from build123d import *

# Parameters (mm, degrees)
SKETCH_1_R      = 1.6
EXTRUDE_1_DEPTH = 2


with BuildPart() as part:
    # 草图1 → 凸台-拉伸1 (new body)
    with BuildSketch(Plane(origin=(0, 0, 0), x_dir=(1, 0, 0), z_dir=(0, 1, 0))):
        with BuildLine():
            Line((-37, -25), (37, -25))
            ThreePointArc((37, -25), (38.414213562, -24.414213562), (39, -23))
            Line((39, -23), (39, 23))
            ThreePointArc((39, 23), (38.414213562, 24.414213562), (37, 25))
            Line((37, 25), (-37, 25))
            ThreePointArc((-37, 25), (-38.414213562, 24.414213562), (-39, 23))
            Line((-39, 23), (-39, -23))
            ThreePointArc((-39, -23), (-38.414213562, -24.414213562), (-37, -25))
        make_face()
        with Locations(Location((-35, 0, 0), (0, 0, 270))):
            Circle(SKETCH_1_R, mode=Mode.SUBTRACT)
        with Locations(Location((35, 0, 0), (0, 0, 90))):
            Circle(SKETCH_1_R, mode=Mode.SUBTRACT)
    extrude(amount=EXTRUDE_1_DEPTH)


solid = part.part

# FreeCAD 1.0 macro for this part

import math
import FreeCAD as App
import Part
import Sketcher

doc = App.newDocument("Part")
body = doc.addObject("PartDesign::Body", "Body")

# Sketch on XZ plane
sketch1 = body.newObject("Sketcher::SketchObject", "Sketch")
sketch1.AttachmentSupport = (doc.getObject("XZ_Plane"), [""])
sketch1.MapMode = "FlatFace"
sketch1.addGeometry(Part.LineSegment(App.Vector(-37, 25, 0), App.Vector(37, 25, 0)), False)
sketch1.addGeometry(Part.ArcOfCircle(Part.Circle(App.Vector(37, 23, 0), App.Vector(0, 0, 1), 2), math.radians(0), math.radians(90)), False)
sketch1.addGeometry(Part.LineSegment(App.Vector(39, 23, 0), App.Vector(39, -23, 0)), False)
sketch1.addGeometry(Part.ArcOfCircle(Part.Circle(App.Vector(37, -23, 0), App.Vector(0, 0, 1), 2), math.radians(-90), math.radians(0)), False)
sketch1.addGeometry(Part.LineSegment(App.Vector(37, -25, 0), App.Vector(-37, -25, 0)), False)
sketch1.addGeometry(Part.ArcOfCircle(Part.Circle(App.Vector(-37, -23, 0), App.Vector(0, 0, 1), 2), math.radians(-180), math.radians(-90)), False)
sketch1.addGeometry(Part.LineSegment(App.Vector(-39, -23, 0), App.Vector(-39, 23, 0)), False)
sketch1.addGeometry(Part.ArcOfCircle(Part.Circle(App.Vector(-37, 23, 0), App.Vector(0, 0, 1), 2), math.radians(90), math.radians(180)), False)
sketch1.addGeometry(Part.Circle(App.Vector(-35, 0, 0), App.Vector(0, 0, 1), 1.6), False)
sketch1.addGeometry(Part.Circle(App.Vector(35, 0, 0), App.Vector(0, 0, 1), 1.6), False)
sketch1.addConstraint(Sketcher.Constraint("Tangent", 0, 2, 1, 2))
sketch1.addConstraint(Sketcher.Constraint("Tangent", 1, 1, 2, 1))
sketch1.addConstraint(Sketcher.Constraint("Tangent", 2, 2, 3, 2))
sketch1.addConstraint(Sketcher.Constraint("Tangent", 3, 1, 4, 1))
sketch1.addConstraint(Sketcher.Constraint("Tangent", 4, 2, 5, 2))
sketch1.addConstraint(Sketcher.Constraint("Tangent", 5, 1, 6, 1))
sketch1.addConstraint(Sketcher.Constraint("Tangent", 6, 2, 7, 2))
sketch1.addConstraint(Sketcher.Constraint("Tangent", 7, 1, 0, 1))
sketch1.addConstraint(Sketcher.Constraint("Horizontal", 0))
sketch1.addConstraint(Sketcher.Constraint("Vertical", 2))
sketch1.addConstraint(Sketcher.Constraint("Horizontal", 4))
sketch1.addConstraint(Sketcher.Constraint("Vertical", 6))
sketch1.addConstraint(Sketcher.Constraint("Equal", 1, 3))
sketch1.addConstraint(Sketcher.Constraint("Equal", 3, 5))
sketch1.addConstraint(Sketcher.Constraint("Equal", 5, 7))
sketch1.addConstraint(Sketcher.Constraint("Equal", 8, 9))
sketch1.addConstraint(Sketcher.Constraint("Symmetric", 1, 3, 5, 3, -1, 1))
sketch1.addConstraint(Sketcher.Constraint("Symmetric", 8, 3, 9, 3, -1, 1))
sketch1.addConstraint(Sketcher.Constraint("PointOnObject", 8, 3, -1))
sketch1.addConstraint(Sketcher.Constraint("Radius", 1, 2.0))
sketch1.addConstraint(Sketcher.Constraint("Diameter", 8, 3.2))
sketch1.addConstraint(Sketcher.Constraint("DistanceX", 0, 1, 0, 2, 74.0))
sketch1.addConstraint(Sketcher.Constraint("DistanceY", 2, 2, 2, 1, 46.0))
sketch1.addConstraint(Sketcher.Constraint("DistanceX", 8, 3, -1, 1, 35.0))
pad1 = body.newObject("PartDesign::Pad", "Pad")
pad1.Profile = sketch1
pad1.Length = 2
pad1.Reversed = True

doc.recompute()
